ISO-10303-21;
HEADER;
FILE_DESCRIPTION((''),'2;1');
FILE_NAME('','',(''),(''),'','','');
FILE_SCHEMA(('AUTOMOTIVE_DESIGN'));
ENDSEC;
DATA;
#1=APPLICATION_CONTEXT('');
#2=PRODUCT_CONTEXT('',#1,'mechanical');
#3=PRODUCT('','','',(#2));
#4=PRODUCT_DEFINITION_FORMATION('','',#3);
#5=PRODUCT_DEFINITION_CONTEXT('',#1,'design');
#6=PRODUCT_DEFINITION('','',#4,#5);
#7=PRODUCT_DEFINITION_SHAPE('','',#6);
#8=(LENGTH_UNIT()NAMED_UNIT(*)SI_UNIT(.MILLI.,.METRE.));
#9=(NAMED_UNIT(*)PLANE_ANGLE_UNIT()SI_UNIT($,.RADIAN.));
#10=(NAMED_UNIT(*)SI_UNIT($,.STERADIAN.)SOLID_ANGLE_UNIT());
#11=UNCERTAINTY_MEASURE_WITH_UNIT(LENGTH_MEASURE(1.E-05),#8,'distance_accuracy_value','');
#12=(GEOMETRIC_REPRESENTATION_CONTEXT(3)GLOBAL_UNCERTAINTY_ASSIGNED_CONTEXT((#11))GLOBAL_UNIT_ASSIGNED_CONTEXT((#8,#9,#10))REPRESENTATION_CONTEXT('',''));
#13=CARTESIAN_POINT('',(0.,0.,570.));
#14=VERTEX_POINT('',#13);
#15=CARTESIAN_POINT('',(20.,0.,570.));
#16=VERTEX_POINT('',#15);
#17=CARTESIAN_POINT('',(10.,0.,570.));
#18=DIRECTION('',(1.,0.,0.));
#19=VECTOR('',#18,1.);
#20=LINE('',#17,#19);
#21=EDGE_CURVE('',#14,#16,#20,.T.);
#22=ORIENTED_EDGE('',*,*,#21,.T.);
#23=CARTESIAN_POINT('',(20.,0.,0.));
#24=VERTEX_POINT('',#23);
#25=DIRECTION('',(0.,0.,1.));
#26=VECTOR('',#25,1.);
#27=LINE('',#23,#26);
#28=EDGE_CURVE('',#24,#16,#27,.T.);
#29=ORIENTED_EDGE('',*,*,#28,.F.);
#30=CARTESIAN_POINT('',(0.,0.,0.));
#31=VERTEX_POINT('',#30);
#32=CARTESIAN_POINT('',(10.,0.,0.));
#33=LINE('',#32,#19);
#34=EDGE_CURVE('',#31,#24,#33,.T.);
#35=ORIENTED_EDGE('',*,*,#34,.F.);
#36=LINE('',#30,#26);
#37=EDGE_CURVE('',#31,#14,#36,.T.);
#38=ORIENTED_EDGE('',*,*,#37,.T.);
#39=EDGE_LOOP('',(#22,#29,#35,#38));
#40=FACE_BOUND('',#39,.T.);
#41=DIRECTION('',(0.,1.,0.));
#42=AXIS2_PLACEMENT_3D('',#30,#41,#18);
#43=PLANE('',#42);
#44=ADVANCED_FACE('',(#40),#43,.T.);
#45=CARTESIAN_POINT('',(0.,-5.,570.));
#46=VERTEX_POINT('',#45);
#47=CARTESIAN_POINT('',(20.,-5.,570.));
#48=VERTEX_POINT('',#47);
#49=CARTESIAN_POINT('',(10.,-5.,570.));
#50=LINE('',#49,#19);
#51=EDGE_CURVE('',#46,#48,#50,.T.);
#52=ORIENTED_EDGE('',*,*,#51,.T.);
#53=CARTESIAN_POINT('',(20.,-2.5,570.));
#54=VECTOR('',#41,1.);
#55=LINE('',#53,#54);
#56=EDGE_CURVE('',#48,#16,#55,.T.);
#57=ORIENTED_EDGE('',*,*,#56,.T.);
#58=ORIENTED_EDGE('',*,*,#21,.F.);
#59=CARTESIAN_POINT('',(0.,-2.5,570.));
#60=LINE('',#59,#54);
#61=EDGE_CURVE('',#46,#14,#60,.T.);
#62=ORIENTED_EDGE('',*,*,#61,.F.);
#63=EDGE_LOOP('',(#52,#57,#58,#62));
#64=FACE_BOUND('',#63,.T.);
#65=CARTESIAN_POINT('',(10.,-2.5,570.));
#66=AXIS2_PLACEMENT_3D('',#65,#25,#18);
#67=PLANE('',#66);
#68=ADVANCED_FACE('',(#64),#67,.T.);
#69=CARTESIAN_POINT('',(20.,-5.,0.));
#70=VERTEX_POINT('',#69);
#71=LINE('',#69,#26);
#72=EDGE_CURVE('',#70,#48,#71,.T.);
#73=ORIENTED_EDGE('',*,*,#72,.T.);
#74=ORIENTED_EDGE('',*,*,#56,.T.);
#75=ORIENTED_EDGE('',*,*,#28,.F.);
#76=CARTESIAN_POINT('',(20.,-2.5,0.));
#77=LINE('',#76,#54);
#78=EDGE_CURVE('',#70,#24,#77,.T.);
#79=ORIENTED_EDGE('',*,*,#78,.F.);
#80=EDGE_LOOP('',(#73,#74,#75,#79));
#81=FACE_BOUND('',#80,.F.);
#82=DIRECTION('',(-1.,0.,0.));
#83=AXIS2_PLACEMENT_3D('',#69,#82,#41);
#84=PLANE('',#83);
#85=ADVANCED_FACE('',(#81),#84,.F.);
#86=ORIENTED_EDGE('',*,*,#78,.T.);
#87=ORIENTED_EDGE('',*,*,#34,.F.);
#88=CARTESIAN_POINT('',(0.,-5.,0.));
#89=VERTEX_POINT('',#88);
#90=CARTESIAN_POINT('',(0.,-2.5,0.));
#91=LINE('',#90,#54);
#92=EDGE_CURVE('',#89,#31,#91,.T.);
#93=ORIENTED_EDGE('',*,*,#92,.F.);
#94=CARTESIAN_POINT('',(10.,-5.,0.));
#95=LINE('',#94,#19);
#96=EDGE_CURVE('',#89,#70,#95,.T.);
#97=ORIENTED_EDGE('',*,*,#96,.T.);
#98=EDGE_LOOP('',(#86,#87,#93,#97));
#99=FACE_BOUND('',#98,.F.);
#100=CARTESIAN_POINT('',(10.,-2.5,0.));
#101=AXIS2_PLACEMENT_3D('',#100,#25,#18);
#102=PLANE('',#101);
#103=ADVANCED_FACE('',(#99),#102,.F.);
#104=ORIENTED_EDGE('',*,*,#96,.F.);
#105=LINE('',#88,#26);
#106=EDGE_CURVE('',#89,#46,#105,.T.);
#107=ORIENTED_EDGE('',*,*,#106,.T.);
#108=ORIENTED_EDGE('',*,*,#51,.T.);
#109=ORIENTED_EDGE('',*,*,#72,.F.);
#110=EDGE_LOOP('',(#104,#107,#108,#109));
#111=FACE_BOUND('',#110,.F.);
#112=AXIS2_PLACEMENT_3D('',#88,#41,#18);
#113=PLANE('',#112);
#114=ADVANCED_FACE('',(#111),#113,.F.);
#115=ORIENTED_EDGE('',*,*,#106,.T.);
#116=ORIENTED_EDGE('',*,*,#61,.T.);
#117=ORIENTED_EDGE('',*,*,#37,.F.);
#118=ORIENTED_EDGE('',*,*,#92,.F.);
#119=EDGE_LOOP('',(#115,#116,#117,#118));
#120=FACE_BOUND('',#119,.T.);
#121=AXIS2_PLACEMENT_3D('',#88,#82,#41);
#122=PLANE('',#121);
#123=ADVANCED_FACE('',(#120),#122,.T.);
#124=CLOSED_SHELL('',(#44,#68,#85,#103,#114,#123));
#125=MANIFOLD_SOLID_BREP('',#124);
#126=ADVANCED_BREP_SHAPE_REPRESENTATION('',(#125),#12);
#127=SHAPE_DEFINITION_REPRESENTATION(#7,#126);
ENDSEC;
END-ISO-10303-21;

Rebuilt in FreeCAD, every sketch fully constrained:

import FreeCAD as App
import Part
import Sketcher

V = App.Vector
Q = App.Units.Quantity

doc = App.newDocument("Part")
body = doc.addObject("PartDesign::Body", "Body")

# Sketch on XY plane
sketch1 = doc.addObject("Sketcher::SketchObject", "Sketch")
body.addObject(sketch1)
sketch1.AttachmentSupport = (doc.XY_Plane, [""])
sketch1.MapMode = "FlatFace"
sketch1.addGeometry([
    Part.LineSegment(V(0, 0, 0), V(0, -5, 0)),
    Part.LineSegment(V(0, -5, 0), V(20, -5, 0)),
    Part.LineSegment(V(20, -5, 0), V(20, 0, 0)),
    Part.LineSegment(V(20, 0, 0), V(0, 0, 0)),
], False)
sketch1.addConstraint([
    Sketcher.Constraint("Coincident", 0, 2, 1, 1),
    Sketcher.Constraint("Coincident", 1, 2, 2, 1),
    Sketcher.Constraint("Coincident", 2, 2, 3, 1),
    Sketcher.Constraint("Coincident", 3, 2, 0, 1),
    Sketcher.Constraint("Vertical", 0),
    Sketcher.Constraint("Horizontal", 1),
    Sketcher.Constraint("Vertical", 2),
    Sketcher.Constraint("Horizontal", 3),
    Sketcher.Constraint("Coincident", 3, 2, -1, 1),
    Sketcher.Constraint("DistanceX", 1, 1, 1, 2, Q("20 mm")),
    Sketcher.Constraint("DistanceY", 0, 2, 0, 1, Q("5 mm")),
])
pad1 = doc.addObject("PartDesign::Pad", "Pad")
body.addObject(pad1)
pad1.Profile = sketch1
pad1.Length = 570

doc.recompute()
